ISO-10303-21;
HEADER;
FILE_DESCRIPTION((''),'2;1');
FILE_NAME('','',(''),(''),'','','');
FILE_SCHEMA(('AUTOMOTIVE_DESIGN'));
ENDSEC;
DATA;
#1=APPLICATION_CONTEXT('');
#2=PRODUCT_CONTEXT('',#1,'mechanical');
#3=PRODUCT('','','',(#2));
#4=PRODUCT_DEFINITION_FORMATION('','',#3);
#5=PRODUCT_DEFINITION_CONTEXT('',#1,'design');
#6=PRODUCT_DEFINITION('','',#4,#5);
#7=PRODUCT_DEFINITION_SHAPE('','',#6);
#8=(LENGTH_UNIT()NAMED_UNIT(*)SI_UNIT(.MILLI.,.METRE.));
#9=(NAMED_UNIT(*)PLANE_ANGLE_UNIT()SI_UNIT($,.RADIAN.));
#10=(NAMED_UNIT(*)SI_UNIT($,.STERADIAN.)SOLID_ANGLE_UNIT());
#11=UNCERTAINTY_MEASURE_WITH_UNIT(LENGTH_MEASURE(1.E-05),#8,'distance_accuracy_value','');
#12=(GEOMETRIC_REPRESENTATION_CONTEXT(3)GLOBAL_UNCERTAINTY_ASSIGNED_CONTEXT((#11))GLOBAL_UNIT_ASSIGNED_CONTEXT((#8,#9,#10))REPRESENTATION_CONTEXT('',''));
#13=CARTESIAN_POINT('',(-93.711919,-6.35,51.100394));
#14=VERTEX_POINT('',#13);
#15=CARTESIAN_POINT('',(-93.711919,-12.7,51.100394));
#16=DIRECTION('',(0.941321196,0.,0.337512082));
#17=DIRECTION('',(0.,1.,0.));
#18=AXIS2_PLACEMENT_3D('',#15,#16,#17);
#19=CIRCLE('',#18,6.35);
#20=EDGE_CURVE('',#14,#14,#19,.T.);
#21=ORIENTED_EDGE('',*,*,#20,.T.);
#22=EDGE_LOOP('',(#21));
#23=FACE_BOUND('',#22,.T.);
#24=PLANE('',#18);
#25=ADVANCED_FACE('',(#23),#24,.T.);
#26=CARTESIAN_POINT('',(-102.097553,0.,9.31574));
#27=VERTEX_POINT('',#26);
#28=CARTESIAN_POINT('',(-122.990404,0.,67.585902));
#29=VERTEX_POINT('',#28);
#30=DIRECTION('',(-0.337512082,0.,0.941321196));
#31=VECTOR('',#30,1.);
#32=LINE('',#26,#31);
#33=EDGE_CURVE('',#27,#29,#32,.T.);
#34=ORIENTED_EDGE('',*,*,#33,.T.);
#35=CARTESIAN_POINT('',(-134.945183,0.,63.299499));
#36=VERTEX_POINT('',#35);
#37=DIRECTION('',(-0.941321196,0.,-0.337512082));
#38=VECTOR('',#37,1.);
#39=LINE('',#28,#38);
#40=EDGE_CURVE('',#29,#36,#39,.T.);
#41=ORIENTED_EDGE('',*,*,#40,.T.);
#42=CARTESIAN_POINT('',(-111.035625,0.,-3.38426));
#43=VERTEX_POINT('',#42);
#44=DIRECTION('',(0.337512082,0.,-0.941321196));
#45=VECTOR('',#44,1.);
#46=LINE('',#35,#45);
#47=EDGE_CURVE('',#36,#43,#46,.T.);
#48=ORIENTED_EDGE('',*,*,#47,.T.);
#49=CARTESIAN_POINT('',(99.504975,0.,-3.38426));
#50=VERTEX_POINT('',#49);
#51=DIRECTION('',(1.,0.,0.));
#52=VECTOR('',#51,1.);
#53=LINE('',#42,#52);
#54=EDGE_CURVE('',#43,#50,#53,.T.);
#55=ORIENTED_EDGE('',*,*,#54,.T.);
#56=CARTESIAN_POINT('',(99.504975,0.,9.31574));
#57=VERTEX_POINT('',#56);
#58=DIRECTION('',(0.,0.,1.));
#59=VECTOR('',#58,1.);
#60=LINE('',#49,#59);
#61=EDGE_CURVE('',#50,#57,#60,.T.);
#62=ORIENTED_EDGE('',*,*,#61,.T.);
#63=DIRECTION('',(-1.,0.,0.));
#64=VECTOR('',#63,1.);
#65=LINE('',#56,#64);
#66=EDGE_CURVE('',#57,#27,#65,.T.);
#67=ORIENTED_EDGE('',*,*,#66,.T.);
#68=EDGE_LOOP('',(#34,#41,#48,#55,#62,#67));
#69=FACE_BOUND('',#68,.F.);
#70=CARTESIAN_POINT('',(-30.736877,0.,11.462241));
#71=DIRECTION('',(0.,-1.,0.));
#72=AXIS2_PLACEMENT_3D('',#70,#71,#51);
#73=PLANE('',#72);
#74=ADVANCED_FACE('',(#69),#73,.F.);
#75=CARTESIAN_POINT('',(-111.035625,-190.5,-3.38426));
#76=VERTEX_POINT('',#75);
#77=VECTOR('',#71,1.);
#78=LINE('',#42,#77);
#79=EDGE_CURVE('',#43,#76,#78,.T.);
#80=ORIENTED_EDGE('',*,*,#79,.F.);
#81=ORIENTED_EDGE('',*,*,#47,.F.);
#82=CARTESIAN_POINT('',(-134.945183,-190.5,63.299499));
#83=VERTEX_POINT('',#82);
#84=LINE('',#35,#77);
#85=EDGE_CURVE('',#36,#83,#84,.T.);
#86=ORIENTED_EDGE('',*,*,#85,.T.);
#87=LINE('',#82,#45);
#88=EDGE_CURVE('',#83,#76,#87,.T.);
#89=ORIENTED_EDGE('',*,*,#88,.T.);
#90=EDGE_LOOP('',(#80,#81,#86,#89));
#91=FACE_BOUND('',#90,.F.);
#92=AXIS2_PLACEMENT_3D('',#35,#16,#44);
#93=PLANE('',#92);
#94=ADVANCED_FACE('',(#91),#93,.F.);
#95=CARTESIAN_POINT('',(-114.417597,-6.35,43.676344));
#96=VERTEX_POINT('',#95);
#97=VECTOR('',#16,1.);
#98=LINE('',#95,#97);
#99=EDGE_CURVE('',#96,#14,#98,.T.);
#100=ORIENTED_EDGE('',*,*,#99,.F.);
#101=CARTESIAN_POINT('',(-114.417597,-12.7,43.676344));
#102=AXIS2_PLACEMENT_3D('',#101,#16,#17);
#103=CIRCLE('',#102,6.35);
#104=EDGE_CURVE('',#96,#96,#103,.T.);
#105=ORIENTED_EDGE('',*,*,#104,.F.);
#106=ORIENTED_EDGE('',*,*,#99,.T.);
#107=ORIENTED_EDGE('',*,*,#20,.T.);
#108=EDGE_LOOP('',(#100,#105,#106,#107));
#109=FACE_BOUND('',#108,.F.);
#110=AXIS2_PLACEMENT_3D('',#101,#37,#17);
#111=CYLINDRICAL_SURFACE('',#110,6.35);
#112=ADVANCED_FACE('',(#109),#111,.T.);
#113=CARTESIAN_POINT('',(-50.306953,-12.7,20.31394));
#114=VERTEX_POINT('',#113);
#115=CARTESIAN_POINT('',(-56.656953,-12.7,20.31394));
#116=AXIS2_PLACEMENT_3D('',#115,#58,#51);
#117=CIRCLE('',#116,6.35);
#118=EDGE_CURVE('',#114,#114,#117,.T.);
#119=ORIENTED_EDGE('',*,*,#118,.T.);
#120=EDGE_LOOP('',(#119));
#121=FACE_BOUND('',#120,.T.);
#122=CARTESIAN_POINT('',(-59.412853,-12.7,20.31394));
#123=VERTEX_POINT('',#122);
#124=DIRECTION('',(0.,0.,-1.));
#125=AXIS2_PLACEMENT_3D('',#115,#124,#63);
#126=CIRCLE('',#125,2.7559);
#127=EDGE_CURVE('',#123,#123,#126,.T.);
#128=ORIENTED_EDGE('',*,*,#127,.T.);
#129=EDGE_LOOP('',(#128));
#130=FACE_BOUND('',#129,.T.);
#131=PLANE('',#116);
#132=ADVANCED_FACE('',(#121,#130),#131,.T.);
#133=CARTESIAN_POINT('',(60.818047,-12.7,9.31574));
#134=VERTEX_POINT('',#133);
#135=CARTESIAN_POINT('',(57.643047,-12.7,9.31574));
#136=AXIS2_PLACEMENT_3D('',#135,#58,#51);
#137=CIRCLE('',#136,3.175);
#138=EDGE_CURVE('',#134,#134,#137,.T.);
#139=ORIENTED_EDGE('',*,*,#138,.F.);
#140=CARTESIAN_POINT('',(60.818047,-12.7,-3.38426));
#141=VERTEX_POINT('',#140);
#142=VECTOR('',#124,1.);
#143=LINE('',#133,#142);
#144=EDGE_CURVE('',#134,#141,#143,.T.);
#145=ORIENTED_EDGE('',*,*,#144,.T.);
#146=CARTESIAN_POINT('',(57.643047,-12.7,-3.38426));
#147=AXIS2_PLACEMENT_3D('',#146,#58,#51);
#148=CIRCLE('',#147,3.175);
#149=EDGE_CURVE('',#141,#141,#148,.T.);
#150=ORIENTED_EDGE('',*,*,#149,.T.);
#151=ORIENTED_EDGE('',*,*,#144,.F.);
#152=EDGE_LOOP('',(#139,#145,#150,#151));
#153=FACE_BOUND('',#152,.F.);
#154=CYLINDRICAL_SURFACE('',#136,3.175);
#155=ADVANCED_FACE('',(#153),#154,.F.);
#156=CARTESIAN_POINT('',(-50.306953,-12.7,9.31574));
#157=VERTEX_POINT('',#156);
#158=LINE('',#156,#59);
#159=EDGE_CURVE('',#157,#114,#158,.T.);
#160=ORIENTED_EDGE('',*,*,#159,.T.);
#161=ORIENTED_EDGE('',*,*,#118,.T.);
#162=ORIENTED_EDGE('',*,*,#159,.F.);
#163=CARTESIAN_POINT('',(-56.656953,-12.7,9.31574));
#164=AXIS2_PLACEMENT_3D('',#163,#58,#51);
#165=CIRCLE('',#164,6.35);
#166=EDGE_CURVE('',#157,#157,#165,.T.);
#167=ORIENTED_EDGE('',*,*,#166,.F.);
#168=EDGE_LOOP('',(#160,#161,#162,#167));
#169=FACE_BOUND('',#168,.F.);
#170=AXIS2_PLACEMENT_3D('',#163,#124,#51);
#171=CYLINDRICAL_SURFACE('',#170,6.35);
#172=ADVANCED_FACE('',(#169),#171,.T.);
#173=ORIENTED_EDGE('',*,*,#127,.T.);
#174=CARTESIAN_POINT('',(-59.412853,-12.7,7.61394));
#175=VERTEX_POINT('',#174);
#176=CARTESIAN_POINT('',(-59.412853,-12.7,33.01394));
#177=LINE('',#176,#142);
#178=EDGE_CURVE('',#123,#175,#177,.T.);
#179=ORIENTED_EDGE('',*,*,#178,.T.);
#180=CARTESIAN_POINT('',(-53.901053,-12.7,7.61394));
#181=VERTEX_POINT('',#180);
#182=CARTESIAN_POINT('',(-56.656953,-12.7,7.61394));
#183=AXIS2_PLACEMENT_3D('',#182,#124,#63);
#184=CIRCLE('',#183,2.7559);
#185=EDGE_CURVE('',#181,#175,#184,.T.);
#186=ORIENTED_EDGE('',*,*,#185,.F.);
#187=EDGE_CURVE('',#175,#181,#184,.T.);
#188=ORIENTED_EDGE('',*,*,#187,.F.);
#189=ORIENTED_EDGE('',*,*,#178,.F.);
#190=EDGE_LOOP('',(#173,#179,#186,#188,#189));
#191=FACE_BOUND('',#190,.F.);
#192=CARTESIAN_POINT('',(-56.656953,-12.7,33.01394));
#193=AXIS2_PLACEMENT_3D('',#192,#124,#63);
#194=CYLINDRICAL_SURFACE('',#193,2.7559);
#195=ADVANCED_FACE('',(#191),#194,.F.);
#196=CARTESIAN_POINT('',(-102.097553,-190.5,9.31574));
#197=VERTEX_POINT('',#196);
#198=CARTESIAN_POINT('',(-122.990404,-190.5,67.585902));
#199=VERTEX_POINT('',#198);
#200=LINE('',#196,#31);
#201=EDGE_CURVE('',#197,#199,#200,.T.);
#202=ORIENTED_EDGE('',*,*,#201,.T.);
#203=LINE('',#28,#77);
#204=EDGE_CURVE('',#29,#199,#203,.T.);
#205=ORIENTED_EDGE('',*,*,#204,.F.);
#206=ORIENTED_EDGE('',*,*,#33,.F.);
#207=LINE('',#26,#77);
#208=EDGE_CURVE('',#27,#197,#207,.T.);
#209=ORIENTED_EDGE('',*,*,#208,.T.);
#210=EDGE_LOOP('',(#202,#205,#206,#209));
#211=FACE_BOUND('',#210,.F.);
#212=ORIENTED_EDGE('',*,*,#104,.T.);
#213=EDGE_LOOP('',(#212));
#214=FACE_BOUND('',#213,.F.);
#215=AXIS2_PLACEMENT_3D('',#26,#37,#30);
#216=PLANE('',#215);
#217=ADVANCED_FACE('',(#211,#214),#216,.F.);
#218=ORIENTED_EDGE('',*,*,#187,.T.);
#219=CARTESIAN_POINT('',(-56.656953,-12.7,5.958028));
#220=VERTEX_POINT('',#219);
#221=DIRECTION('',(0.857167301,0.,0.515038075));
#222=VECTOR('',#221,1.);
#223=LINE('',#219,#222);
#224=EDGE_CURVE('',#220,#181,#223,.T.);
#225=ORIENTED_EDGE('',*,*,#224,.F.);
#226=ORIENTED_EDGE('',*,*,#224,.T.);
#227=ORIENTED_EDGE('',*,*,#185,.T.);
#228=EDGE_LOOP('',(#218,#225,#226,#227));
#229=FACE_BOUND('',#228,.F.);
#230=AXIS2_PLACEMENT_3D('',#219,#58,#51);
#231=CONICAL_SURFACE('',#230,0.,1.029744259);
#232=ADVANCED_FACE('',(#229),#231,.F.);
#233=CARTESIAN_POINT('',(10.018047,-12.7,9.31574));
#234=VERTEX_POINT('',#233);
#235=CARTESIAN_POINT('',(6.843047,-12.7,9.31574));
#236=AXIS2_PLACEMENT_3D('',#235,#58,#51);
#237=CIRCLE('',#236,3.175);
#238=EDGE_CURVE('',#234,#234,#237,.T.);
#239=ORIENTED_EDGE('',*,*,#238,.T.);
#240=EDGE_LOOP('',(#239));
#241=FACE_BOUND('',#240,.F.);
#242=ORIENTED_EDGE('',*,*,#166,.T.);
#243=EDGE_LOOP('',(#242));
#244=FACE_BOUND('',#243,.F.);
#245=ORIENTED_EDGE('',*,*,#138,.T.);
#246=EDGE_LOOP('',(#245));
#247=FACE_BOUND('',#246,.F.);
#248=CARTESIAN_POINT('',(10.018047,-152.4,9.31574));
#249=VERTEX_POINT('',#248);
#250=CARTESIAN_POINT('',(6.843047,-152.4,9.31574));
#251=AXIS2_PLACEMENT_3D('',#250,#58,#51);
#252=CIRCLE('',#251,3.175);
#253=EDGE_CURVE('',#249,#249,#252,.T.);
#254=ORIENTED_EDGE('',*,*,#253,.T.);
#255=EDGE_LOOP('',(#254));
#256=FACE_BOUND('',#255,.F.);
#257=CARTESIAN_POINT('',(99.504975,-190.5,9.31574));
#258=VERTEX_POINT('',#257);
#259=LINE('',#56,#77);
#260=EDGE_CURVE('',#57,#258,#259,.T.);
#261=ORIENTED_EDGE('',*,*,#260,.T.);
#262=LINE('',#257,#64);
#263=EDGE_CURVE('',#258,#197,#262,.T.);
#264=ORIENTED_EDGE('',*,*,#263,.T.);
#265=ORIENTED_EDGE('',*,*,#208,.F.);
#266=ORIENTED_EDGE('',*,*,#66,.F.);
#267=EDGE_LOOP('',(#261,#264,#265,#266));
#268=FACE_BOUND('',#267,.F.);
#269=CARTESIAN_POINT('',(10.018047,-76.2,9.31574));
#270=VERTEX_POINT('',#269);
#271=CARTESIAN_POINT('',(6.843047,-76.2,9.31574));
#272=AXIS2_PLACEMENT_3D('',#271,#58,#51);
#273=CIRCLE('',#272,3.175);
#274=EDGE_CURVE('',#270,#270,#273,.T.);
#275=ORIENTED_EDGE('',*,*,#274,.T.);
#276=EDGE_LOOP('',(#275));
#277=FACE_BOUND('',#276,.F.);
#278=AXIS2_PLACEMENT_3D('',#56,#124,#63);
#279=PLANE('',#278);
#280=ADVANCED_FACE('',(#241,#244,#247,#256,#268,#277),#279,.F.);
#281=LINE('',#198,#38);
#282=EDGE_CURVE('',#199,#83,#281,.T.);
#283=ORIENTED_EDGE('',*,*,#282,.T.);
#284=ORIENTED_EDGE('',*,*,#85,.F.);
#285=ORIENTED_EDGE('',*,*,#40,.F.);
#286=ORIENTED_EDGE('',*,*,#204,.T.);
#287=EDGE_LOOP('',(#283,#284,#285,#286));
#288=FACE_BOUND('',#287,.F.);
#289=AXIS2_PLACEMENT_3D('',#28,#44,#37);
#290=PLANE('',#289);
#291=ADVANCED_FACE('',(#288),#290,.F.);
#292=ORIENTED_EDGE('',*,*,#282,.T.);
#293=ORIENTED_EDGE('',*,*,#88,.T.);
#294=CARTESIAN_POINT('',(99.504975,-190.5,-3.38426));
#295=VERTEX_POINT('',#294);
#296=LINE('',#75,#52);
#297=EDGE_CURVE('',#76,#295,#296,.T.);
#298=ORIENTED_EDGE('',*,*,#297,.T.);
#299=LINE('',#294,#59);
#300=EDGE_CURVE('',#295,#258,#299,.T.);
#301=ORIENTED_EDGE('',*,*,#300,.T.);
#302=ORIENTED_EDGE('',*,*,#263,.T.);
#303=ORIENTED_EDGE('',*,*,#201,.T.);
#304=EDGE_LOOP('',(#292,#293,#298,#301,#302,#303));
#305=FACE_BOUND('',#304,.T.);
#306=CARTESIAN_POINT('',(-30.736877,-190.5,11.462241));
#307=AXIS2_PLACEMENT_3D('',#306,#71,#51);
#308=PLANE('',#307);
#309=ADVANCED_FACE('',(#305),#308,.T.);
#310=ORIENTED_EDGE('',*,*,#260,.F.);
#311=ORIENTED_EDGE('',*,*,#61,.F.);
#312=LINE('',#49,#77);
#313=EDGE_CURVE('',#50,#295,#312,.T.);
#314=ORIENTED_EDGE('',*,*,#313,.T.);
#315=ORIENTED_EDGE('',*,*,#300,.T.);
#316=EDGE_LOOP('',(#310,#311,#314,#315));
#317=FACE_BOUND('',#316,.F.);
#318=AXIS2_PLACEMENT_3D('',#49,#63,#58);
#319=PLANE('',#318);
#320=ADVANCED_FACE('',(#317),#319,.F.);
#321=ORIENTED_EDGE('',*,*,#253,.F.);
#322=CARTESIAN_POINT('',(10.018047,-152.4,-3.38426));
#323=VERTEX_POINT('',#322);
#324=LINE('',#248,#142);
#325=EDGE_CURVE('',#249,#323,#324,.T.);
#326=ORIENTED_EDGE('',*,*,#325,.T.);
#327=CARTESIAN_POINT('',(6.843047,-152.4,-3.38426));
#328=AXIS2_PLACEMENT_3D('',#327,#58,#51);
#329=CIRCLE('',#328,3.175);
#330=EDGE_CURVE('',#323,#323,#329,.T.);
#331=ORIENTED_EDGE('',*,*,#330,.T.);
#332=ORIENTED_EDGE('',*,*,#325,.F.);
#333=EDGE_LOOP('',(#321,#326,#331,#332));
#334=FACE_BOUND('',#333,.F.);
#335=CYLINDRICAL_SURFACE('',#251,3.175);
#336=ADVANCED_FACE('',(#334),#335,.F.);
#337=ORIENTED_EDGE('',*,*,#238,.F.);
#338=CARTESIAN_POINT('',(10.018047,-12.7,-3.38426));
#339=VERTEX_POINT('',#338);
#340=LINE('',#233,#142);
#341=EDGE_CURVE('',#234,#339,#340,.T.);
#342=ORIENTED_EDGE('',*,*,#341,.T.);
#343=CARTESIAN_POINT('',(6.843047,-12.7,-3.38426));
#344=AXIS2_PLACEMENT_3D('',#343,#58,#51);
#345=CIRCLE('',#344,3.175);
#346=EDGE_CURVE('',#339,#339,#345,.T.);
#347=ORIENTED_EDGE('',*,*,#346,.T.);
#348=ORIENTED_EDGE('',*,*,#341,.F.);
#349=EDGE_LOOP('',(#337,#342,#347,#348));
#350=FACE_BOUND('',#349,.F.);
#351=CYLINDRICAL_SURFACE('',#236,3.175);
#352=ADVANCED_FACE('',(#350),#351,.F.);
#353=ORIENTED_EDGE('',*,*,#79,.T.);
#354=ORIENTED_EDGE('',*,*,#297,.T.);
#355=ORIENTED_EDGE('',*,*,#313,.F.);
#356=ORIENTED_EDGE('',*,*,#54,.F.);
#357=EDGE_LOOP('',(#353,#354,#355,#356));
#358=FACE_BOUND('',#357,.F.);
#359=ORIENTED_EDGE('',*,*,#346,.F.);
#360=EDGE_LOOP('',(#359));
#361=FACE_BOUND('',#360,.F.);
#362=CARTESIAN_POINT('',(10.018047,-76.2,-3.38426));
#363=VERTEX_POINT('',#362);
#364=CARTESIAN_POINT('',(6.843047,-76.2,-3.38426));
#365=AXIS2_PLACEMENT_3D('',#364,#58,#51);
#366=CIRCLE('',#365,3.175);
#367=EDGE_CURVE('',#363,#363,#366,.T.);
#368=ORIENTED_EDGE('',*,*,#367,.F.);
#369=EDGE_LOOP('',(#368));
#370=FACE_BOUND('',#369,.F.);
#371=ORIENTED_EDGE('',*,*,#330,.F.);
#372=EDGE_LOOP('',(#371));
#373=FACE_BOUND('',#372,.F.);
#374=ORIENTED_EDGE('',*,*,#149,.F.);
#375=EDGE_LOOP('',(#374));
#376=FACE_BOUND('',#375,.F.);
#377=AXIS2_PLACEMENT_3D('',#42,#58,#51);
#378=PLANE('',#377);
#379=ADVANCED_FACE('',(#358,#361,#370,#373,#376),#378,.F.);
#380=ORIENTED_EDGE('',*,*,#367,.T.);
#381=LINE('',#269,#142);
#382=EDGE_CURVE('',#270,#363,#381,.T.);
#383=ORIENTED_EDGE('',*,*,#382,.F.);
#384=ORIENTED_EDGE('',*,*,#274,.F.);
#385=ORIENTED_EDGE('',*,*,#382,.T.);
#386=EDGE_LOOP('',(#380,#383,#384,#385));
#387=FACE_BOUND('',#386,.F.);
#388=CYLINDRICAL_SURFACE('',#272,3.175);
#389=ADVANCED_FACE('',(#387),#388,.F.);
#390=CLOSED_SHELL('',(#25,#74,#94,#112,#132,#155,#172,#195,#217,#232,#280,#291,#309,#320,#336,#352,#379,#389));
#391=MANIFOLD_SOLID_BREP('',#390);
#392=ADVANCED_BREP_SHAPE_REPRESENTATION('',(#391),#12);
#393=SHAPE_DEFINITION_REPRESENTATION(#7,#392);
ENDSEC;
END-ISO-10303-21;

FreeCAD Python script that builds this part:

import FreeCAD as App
import Part
import Sketcher
Q = App.Units.Quantity

doc = App.newDocument("Part")
body = doc.addObject("PartDesign::Body", "Body")

sketch1 = body.newObject("Sketcher::SketchObject", "Sketch")
sketch1.AttachmentSupport = (doc.getObject("XZ_Plane"), [""])
sketch1.MapMode = "FlatFace"
sketch1.addGeometry([
    Part.LineSegment(App.Vector(-135, 63, 0), App.Vector(-111, -3, 0)),
    Part.LineSegment(App.Vector(-111, -3, 0), App.Vector(100, -3, 0)),
    Part.LineSegment(App.Vector(100, -3, 0), App.Vector(100, 9, 0)),
    Part.LineSegment(App.Vector(100, 9, 0), App.Vector(-102, 9, 0)),
    Part.LineSegment(App.Vector(-102, 9, 0), App.Vector(-123, 68, 0)),
    Part.LineSegment(App.Vector(-123, 68, 0), App.Vector(-135, 63, 0)),
], False)
sketch1.addConstraint([
    Sketcher.Constraint("Coincident", 0, 2, 1, 1),
    Sketcher.Constraint("Coincident", 1, 2, 2, 1),
    Sketcher.Constraint("Coincident", 2, 2, 3, 1),
    Sketcher.Constraint("Coincident", 3, 2, 4, 1),
    Sketcher.Constraint("Coincident", 4, 2, 5, 1),
    Sketcher.Constraint("Coincident", 5, 2, 0, 1),
    Sketcher.Constraint("Horizontal", 1),
    Sketcher.Constraint("Vertical", 2),
    Sketcher.Constraint("Horizontal", 3),
    Sketcher.Constraint("Parallel", 0, 4),
    Sketcher.Constraint("Perpendicular", 4, 5),
    Sketcher.Constraint("DistanceY", 2, 1, 2, 2, Q("0.5 in")),
    Sketcher.Constraint("Distance", 5, Q("0.5 in")),
    Sketcher.Constraint("DistanceX", 1, 1, 1, 2, Q("8.289 in")),
    Sketcher.Constraint("Distance", 0, Q("2.789 in")),
    Sketcher.Constraint("DistanceX", 3, 2, 3, 1, Q("201.602528 mm")),
    Sketcher.Constraint("DistanceY", -1, 1, 4, 2, Q("67.585902 mm")),
    Sketcher.Constraint("DistanceX", 0, 2, -1, 1, Q("111.035625 mm")),
])
pad1 = body.newObject("PartDesign::Pad", "Pad")
pad1.Profile = sketch1
pad1.Length = Q("7.5 in")

sketch2 = body.newObject("Sketcher::SketchObject", "Sketch001")
sketch2.AttachmentSupport = (doc.getObject("XY_Plane"), [""])
sketch2.MapMode = "FlatFace"
sketch2.AttachmentOffset = App.Placement(App.Vector(0, 0, 9.31574), App.Rotation())
sketch2.addGeometry([
    Part.Circle(App.Vector(6.8, -152.4, 0), App.Vector(0, 0, 1), 3.2),
    Part.Circle(App.Vector(6.8, -76.2, 0), App.Vector(0, 0, 1), 3.2),
    Part.Circle(App.Vector(6.8, -12.7, 0), App.Vector(0, 0, 1), 3.2),
    Part.Circle(App.Vector(57.6, -12.7, 0), App.Vector(0, 0, 1), 3.2),
], False)
sketch2.addConstraint([
    Sketcher.Constraint("Equal", 0, 1),
    Sketcher.Constraint("Equal", 1, 2),
    Sketcher.Constraint("Equal", 2, 3),
    Sketcher.Constraint("Horizontal", 2, 3, 3, 3),
    Sketcher.Constraint("Vertical", 0, 3, 1, 3),
    Sketcher.Constraint("Vertical", 1, 3, 2, 3),
    Sketcher.Constraint("Diameter", 0, Q("0.25 in")),
    Sketcher.Constraint("DistanceY", 0, 3, -1, 1, Q("6 in")),
    Sketcher.Constraint("DistanceY", 1, 3, -1, 1, Q("3 in")),
    Sketcher.Constraint("DistanceX", 2, 3, 3, 3, Q("2 in")),
    Sketcher.Constraint("DistanceY", 2, 3, -1, 1, Q("0.5 in")),
    Sketcher.Constraint("DistanceX", -1, 1, 0, 3, Q("6.843047 mm")),
])
pocket1 = body.newObject("PartDesign::Pocket", "Pocket")
pocket1.Profile = sketch2
pocket1.Type = "ThroughAll"

sketch3 = body.newObject("Sketcher::SketchObject", "Sketch002")
sketch3.AttachmentSupport = (doc.getObject("XY_Plane"), [""])
sketch3.MapMode = "FlatFace"
sketch3.AttachmentOffset = App.Placement(App.Vector(0, 0, 9.31574), App.Rotation())
sketch3.addGeometry(Part.Circle(App.Vector(-57, -13, 0), App.Vector(0, 0, 1), 6), False)
sketch3.addConstraint([
    Sketcher.Constraint("Diameter", 0, Q("0.5 in")),
    Sketcher.Constraint("DistanceY", 0, 3, -1, 1, Q("0.5 in")),
    Sketcher.Constraint("DistanceX", 0, 3, -1, 1, Q("56.656953 mm")),
])
pad2 = body.newObject("PartDesign::Pad", "Pad001")
pad2.Profile = sketch3
pad2.Length = Q("0.433 in")

sketch4 = body.newObject("Sketcher::SketchObject", "Sketch003")
sketch4.Placement = App.Placement(App.Vector(-87.507492, 0, -31.375938), App.Rotation(App.Vector(0, 1, 0), App.Vector(-0.337512082, 0, 0.941321196), App.Vector(0.941321196, 0, 0.337512082), "ZXY"))
sketch4.addGeometry(Part.Circle(App.Vector(-13, 80, 0), App.Vector(0, 0, 1), 6), False)
sketch4.addConstraint([
    Sketcher.Constraint("Diameter", 0, Q("0.5 in")),
    Sketcher.Constraint("DistanceX", 0, 3, -1, 1, Q("0.5 in")),
    Sketcher.Constraint("DistanceY", -1, 1, 0, 3, Q("79.730789 mm")),
])
pad3 = body.newObject("PartDesign::Pad", "Pad002")
pad3.Profile = sketch4
pad3.Length = Q("0.866 in")

sketch5 = body.newObject("Sketcher::SketchObject", "Sketch004")
sketch5.AttachmentSupport = (doc.getObject("XY_Plane"), [""])
sketch5.MapMode = "FlatFace"
sketch5.AttachmentOffset = App.Placement(App.Vector(0, 0, 20.31394), App.Rotation())
sketch5.addGeometry(Part.Circle(App.Vector(-56.7, -12.7, 0), App.Vector(0, 0, 1), 2.8), False)
sketch5.addConstraint([
    Sketcher.Constraint("Diameter", 0, Q("0.217 in")),
    Sketcher.Constraint("DistanceY", 0, 3, -1, 1, Q("0.5 in")),
    Sketcher.Constraint("DistanceX", 0, 3, -1, 1, Q("56.656953 mm")),
])
doc.recompute()
hole = body.newObject("PartDesign::Hole", "Hole")
hole.Profile = sketch5
hole.ThreadType = "None"
hole.Diameter = Q("0.217 in")
hole.DepthType = "Dimension"
hole.Depth = Q("0.5 in")
hole.DrillPoint = "Angled"
hole.DrillPointAngle = 118

doc.recompute()
